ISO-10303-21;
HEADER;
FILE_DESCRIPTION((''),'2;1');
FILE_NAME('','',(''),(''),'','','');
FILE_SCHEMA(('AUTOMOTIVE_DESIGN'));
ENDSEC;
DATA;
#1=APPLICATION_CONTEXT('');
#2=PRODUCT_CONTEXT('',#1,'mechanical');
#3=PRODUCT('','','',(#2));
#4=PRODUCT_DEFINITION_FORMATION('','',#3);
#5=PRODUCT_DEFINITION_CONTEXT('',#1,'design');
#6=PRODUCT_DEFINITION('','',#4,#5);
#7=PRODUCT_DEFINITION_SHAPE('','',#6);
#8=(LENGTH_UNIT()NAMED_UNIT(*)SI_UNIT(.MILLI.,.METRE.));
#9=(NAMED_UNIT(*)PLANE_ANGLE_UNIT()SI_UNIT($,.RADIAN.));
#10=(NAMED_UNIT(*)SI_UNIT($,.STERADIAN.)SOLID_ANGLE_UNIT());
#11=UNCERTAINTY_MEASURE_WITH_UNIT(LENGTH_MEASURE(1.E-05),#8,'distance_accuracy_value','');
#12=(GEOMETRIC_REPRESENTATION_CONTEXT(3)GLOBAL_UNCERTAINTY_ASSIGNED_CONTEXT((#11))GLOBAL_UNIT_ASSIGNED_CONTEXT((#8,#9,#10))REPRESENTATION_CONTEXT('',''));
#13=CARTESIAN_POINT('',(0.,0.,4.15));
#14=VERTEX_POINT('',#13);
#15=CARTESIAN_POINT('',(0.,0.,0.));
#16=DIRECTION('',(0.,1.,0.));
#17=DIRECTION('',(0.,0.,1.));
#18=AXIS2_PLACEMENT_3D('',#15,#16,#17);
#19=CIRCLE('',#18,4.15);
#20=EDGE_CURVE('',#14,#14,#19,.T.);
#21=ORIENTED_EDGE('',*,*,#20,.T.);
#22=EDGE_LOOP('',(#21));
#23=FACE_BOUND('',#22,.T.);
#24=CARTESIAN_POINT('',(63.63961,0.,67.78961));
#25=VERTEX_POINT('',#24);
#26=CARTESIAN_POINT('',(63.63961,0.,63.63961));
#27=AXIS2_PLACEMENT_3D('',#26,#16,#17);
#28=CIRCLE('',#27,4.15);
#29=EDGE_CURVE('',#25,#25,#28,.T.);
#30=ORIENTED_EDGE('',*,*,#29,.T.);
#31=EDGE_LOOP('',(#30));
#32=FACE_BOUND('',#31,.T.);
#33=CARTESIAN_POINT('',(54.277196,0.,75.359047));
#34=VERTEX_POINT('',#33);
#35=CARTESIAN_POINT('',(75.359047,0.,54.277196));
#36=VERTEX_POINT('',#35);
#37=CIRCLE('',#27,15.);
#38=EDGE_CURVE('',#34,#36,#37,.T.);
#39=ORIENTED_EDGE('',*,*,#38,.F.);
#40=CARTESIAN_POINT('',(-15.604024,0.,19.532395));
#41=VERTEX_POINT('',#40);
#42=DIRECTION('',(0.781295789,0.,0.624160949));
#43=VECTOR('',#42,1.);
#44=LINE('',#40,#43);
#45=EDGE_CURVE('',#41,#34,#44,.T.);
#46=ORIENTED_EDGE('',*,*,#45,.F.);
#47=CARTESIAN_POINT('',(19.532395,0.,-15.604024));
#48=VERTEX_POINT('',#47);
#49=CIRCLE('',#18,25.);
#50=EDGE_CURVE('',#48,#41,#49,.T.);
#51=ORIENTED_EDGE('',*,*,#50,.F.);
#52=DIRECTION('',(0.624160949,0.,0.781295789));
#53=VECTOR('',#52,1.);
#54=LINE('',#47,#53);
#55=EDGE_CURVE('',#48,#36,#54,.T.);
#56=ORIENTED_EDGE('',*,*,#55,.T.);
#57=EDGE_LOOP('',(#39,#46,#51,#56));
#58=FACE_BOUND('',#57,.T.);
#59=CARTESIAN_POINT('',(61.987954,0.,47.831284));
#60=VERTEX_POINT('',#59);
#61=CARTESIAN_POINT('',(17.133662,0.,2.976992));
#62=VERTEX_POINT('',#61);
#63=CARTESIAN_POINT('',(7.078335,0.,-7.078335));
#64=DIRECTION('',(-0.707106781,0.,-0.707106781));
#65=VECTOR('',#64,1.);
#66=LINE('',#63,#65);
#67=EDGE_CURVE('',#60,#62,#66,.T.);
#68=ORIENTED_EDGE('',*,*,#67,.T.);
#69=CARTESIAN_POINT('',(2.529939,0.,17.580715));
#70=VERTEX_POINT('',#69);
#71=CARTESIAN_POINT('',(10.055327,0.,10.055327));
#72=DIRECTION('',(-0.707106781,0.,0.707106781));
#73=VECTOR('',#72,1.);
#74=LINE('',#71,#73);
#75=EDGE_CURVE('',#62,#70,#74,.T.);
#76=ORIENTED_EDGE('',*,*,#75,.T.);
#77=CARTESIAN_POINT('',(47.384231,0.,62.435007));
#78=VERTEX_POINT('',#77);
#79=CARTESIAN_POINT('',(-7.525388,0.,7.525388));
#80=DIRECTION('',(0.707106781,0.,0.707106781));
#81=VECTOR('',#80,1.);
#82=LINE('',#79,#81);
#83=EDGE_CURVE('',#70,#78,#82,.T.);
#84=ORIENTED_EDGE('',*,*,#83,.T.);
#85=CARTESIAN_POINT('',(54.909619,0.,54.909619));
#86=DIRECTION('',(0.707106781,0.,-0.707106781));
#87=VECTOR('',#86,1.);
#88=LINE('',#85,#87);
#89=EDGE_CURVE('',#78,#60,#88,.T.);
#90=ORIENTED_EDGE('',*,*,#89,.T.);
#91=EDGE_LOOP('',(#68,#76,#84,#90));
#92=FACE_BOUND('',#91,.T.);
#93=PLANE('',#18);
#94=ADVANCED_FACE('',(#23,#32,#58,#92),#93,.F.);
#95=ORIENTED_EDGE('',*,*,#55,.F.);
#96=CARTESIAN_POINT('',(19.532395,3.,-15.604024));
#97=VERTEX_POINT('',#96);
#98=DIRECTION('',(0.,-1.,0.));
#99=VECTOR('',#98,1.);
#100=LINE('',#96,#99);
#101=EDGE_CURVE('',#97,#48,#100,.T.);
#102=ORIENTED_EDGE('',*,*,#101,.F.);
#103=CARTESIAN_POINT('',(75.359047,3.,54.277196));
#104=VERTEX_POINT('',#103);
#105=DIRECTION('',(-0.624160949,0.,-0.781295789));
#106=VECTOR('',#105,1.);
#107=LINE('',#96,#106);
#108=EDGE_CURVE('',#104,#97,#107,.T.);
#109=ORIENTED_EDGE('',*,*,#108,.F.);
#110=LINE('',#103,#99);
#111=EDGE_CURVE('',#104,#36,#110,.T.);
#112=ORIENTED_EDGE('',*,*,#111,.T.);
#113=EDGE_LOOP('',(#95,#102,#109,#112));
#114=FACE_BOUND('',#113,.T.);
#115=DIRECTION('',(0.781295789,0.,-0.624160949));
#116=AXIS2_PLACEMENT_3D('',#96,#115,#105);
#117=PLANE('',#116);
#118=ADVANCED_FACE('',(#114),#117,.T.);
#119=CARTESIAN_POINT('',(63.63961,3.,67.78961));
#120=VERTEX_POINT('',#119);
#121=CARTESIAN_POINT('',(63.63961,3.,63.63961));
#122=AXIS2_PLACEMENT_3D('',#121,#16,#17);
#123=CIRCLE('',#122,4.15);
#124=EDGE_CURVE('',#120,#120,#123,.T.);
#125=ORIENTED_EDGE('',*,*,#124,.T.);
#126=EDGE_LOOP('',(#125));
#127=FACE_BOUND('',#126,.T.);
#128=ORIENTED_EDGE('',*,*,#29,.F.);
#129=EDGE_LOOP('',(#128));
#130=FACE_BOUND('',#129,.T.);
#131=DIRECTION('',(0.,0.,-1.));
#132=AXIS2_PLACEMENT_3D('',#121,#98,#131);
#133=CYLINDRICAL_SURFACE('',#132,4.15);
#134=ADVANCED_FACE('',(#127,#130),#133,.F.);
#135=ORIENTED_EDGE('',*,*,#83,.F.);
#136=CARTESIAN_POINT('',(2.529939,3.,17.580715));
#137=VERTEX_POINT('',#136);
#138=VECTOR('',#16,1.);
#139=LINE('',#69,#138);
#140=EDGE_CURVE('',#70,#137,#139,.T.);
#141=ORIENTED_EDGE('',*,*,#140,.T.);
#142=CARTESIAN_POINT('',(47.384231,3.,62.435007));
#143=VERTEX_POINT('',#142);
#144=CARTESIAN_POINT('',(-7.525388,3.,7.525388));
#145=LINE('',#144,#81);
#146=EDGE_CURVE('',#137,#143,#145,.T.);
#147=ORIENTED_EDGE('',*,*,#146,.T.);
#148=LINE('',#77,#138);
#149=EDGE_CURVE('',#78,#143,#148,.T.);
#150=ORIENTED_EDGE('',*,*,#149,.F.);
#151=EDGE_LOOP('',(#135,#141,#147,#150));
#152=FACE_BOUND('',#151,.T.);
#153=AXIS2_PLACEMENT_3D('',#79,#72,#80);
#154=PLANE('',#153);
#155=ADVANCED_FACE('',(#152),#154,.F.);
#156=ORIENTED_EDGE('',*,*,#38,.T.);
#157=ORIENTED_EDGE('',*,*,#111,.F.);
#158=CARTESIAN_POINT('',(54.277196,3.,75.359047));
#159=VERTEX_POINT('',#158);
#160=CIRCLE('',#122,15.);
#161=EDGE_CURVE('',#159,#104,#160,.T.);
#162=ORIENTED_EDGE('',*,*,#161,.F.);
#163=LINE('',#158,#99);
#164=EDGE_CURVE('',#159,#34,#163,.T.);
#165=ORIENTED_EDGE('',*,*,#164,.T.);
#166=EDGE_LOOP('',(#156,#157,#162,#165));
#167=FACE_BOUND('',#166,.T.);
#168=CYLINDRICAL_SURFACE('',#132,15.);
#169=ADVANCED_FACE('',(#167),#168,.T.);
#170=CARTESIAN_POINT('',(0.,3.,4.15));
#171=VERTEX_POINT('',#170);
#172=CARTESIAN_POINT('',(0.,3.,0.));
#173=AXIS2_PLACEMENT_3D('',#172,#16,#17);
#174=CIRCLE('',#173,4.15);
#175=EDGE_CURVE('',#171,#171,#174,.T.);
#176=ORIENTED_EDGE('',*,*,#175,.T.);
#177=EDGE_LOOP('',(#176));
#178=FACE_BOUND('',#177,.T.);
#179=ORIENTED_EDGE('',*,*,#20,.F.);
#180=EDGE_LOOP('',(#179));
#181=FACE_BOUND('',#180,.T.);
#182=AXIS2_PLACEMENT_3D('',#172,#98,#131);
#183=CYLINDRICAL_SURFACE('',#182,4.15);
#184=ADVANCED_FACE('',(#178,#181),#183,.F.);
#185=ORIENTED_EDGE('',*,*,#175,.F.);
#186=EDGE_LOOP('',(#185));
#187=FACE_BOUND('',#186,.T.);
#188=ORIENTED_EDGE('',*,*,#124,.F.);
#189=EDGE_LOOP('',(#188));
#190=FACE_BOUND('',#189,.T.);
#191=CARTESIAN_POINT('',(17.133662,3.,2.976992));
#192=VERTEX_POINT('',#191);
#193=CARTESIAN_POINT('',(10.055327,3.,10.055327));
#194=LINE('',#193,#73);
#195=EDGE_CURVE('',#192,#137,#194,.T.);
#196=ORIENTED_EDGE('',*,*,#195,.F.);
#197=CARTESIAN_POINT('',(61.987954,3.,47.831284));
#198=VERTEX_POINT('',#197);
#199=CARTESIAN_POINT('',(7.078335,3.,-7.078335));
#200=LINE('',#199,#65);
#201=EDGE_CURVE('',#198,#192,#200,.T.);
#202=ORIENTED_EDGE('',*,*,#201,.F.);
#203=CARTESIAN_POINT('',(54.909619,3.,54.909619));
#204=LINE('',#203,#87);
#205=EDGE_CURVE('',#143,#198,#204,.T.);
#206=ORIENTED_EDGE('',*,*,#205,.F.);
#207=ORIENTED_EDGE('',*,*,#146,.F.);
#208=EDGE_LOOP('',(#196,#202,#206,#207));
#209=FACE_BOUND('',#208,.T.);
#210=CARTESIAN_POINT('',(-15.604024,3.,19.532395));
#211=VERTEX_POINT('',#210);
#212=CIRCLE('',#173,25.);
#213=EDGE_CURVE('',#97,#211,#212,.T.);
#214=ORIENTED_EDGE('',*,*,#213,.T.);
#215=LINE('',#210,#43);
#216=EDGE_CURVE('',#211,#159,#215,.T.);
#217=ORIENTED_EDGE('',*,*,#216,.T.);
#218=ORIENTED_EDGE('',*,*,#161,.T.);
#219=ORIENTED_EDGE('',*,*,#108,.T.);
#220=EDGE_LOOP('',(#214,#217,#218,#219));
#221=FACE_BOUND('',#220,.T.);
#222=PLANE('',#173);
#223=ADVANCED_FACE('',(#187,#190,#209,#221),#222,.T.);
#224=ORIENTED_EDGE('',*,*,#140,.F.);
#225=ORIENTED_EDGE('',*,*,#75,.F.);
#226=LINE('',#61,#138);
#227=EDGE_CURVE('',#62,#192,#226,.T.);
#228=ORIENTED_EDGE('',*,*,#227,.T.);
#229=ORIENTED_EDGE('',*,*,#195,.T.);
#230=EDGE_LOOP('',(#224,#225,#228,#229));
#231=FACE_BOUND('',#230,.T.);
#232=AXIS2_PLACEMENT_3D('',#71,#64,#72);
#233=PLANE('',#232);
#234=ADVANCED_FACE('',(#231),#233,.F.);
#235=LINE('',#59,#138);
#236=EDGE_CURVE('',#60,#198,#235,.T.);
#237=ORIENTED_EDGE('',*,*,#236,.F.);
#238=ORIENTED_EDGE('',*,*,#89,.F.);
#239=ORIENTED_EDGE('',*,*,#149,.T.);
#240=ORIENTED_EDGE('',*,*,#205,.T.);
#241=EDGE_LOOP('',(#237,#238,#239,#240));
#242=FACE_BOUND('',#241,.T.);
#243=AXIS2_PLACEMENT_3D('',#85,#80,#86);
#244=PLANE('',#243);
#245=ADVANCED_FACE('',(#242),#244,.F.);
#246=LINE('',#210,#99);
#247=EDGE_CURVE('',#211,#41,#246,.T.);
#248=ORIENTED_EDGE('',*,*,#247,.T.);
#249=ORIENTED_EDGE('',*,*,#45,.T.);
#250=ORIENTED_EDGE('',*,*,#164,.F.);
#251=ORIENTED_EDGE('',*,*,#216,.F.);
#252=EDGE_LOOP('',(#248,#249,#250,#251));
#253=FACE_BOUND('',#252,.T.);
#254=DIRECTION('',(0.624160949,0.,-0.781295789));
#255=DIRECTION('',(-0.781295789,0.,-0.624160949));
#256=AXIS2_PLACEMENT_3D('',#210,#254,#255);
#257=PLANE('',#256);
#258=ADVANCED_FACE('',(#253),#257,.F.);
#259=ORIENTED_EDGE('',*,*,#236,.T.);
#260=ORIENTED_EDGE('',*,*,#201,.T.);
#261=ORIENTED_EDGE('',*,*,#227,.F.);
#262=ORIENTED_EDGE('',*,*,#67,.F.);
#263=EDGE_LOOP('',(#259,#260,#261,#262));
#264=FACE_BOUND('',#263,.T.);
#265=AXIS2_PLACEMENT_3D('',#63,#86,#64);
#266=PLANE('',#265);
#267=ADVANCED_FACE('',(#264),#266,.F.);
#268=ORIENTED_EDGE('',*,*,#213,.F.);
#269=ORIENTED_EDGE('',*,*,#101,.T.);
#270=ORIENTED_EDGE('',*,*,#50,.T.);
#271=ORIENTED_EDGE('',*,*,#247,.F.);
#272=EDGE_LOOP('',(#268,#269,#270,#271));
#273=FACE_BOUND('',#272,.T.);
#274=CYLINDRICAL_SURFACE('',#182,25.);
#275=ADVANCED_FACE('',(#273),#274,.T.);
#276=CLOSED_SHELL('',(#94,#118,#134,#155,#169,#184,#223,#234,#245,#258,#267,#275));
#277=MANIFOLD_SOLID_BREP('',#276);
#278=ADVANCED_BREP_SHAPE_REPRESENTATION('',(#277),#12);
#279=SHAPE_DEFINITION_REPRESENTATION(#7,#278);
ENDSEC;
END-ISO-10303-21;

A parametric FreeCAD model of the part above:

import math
import FreeCAD as App
import Part
import Sketcher

V = App.Vector
Q = App.Units.Quantity


def add_polygon(sketch, points):
    """Adds a closed chain of lines whose ends are joined by coincident constraints."""
    first, n = sketch.GeometryCount, len(points)
    for a, b in zip(points, points[1:] + points[:1]):
        sketch.addGeometry(Part.LineSegment(App.Vector(*a, 0), App.Vector(*b, 0)), False)
    for i in range(n):
        sketch.addConstraint(Sketcher.Constraint("Coincident", first + i, 2, first + (i + 1) % n, 1))

doc = App.newDocument("Part")
body = doc.addObject("PartDesign::Body", "Body")

sketch1 = body.newObject("Sketcher::SketchObject", "Sketch")
sketch1.AttachmentSupport = (doc.getObject("XZ_Plane"), [""])
sketch1.MapMode = "FlatFace"
sketch1.addGeometry([
    Part.ArcOfCircle(Part.Circle(V(0, 0, 0), V(0, 0, 1), 25), math.radians(128.62063), math.radians(321.37937)),
    Part.LineSegment(V(-15.604024, 19.532395, 0), V(54.277196, 75.359047, 0)),
    Part.ArcOfCircle(Part.Circle(V(63.63961, 63.63961, 0), V(0, 0, 1), 15), math.radians(-38.62063), math.radians(128.62063)),
    Part.LineSegment(V(75.359047, 54.277196, 0), V(19.532395, -15.604024, 0)),
    Part.Circle(V(63.63961, 63.63961, 0), V(0, 0, 1), 4.15),
    Part.Circle(V(0, 0, 0), V(0, 0, 1), 4.15),
], False)
sketch1.addConstraint([
    Sketcher.Constraint("Tangent", 0, 1, 1, 1),
    Sketcher.Constraint("Tangent", 1, 2, 2, 2),
    Sketcher.Constraint("Tangent", 2, 1, 3, 1),
    Sketcher.Constraint("Tangent", 3, 2, 0, 2),
    Sketcher.Constraint("Coincident", 0, 3, -1, 1),
    Sketcher.Constraint("Coincident", 5, 3, -1, 1),
    Sketcher.Constraint("Coincident", 4, 3, 2, 3),
    Sketcher.Constraint("Equal", 4, 5),
    Sketcher.Constraint("Radius", 0, Q("25 mm")),
    Sketcher.Constraint("Radius", 2, Q("15 mm")),
    Sketcher.Constraint("Diameter", 4, Q("8.3 mm")),
    Sketcher.Constraint("Distance", 1, Q("89.442719 mm")),
    Sketcher.Constraint("DistanceX", -1, 1, 2, 3, Q("63.63961 mm")),
])
pad1 = body.newObject("PartDesign::Pad", "Pad")
pad1.Profile = sketch1
pad1.Length = 3
pad1.Reversed = True

sketch2 = body.newObject("Sketcher::SketchObject", "Sketch001")
sketch2.AttachmentSupport = (doc.getObject("XZ_Plane"), [""])
sketch2.MapMode = "FlatFace"
sketch2.AttachmentOffset = App.Placement(V(0, 0, -3), App.Rotation())
sketch2.addGeometry([
    Part.ArcOfCircle(Part.Circle(V(63.63961, 63.63961, 0), V(0, 0, 1), 15), math.radians(-38.62063), math.radians(128.62063)),
    Part.LineSegment(V(75.359047, 54.277196, 0), V(19.532395, -15.604024, 0)),
    Part.ArcOfCircle(Part.Circle(V(0, 0, 0), V(0, 0, 1), 25), math.radians(128.62063), math.radians(321.37937)),
    Part.LineSegment(V(-15.604024, 19.532395, 0), V(54.277196, 75.359047, 0)),
    Part.ArcOfCircle(Part.Circle(V(0, 0, 0), V(0, 0, 1), 23), math.radians(128.62063), math.radians(321.37937)),
    Part.LineSegment(V(17.969803, -14.355702, 0), V(73.796456, 55.525518, 0)),
    Part.ArcOfCircle(Part.Circle(V(63.63961, 63.63961, 0), V(0, 0, 1), 13), math.radians(-38.62063), math.radians(128.62063)),
    Part.LineSegment(V(55.525518, 73.796456, 0), V(-14.355702, 17.969803, 0)),
], False)
sketch2.addConstraint([
    Sketcher.Constraint("Tangent", 0, 1, 1, 1),
    Sketcher.Constraint("Tangent", 1, 2, 2, 2),
    Sketcher.Constraint("Tangent", 2, 1, 3, 1),
    Sketcher.Constraint("Tangent", 3, 2, 0, 2),
    Sketcher.Constraint("Tangent", 4, 2, 5, 1),
    Sketcher.Constraint("Tangent", 5, 2, 6, 1),
    Sketcher.Constraint("Tangent", 6, 2, 7, 1),
    Sketcher.Constraint("Tangent", 7, 2, 4, 1),
    Sketcher.Constraint("Coincident", 2, 3, -1, 1),
    Sketcher.Constraint("Coincident", 4, 3, -1, 1),
    Sketcher.Constraint("Coincident", 6, 3, 0, 3),
    Sketcher.Constraint("Parallel", 1, 5),
    Sketcher.Constraint("Radius", 0, Q("15 mm")),
    Sketcher.Constraint("Radius", 2, Q("25 mm")),
    Sketcher.Constraint("Radius", 4, Q("23 mm")),
    Sketcher.Constraint("DistanceY", 4, 2, -1, 1, Q("14.355702 mm")),
    Sketcher.Constraint("DistanceX", 7, 2, -1, 1, Q("14.355702 mm")),
])
pad2 = body.newObject("PartDesign::Pad", "Pad001")
pad2.Profile = sketch2
pad2.Length = 12
pad2.Reversed = True

sketch3 = body.newObject("Sketcher::SketchObject", "Sketch002")
sketch3.AttachmentSupport = (doc.getObject("XZ_Plane"), [""])
sketch3.MapMode = "FlatFace"
sketch3.AttachmentOffset = App.Placement(V(0, 0, -3), App.Rotation())
add_polygon(sketch3, [(17.133662, 2.976992), (10.055327, 10.055327), (2.529939, 17.580715), (47.384231, 62.435007), (54.909619, 54.909619), (61.987954, 47.831284)])
sketch3.addConstraint([
    Sketcher.Constraint("Parallel", 0, 1),
    Sketcher.Constraint("Perpendicular", 1, 2),
    Sketcher.Constraint("Perpendicular", 2, 3),
    Sketcher.Constraint("Parallel", 3, 4),
    Sketcher.Constraint("Perpendicular", 4, 5),
    Sketcher.Constraint("Equal", 1, 3),
    Sketcher.Constraint("Angle", 0, Q("135 deg")),
    Sketcher.Constraint("Distance", 2, Q("63.433548 mm")),
    Sketcher.Constraint("DistanceX", -1, 1, 1, 2, Q("2.529939 mm")),
    Sketcher.Constraint("DistanceX", -1, 1, 3, 2, Q("54.909619 mm")),
    Sketcher.Constraint("DistanceY", -1, 1, 3, 2, Q("54.909619 mm")),
    Sketcher.Constraint("DistanceY", 1, 2, 4, 2, Q("30.250569 mm")),
])
pocket1 = body.newObject("PartDesign::Pocket", "Pocket")
pocket1.Profile = sketch3
pocket1.Type = "ThroughAll"
pocket1.Reversed = True

sketch4 = body.newObject("Sketcher::SketchObject", "Sketch003")
sketch4.AttachmentSupport = (doc.getObject("XZ_Plane"), [""])
sketch4.MapMode = "FlatFace"
sketch4.AttachmentOffset = App.Placement(V(0, 0, -3), App.Rotation())
sketch4.addGeometry([
    Part.LineSegment(V(75.359047, 54.277196, 0), V(19.532395, -15.604024, 0)),
    Part.ArcOfCircle(Part.Circle(V(0, 0, 0), V(0, 0, 1), 25), math.radians(128.62063), math.radians(321.37937)),
    Part.LineSegment(V(-15.604024, 19.532395, 0), V(54.277196, 75.359047, 0)),
    Part.ArcOfCircle(Part.Circle(V(63.63961, 63.63961, 0), V(0, 0, 1), 15), math.radians(0), math.radians(128.62063)),
    Part.ArcOfCircle(Part.Circle(V(63.63961, 63.63961, 0), V(0, 0, 1), 15), math.radians(-38.62063), math.radians(0)),
    Part.LineSegment(V(-6.700598, 24.085307, 0), V(-14.355702, 17.969803, 0)),
    Part.ArcOfCircle(Part.Circle(V(0, 0, 0), V(0, 0, 1), 23), math.radians(128.62063), math.radians(321.37937)),
    Part.LineSegment(V(17.969803, -14.355702, 0), V(24.085307, -6.700598, 0)),
    Part.LineSegment(V(24.085307, -6.700598, 0), V(69.125663, 49.678836, 0)),
    Part.LineSegment(V(69.125663, 49.678836, 0), V(73.796456, 55.525518, 0)),
    Part.ArcOfCircle(Part.Circle(V(63.63961, 63.63961, 0), V(0, 0, 1), 13), math.radians(-38.62063), math.radians(0)),
    Part.ArcOfCircle(Part.Circle(V(63.63961, 63.63961, 0), V(0, 0, 1), 13), math.radians(0), math.radians(128.62063)),
    Part.LineSegment(V(55.525518, 73.796456, 0), V(49.678836, 69.125663, 0)),
    Part.LineSegment(V(49.678836, 69.125663, 0), V(-6.700598, 24.085307, 0)),
], False)
sketch4.addConstraint([
    Sketcher.Constraint("Tangent", 0, 2, 1, 2),
    Sketcher.Constraint("Tangent", 1, 1, 2, 1),
    Sketcher.Constraint("Tangent", 2, 2, 3, 2),
    Sketcher.Constraint("Tangent", 3, 1, 4, 2),
    Sketcher.Constraint("Tangent", 4, 1, 0, 1),
    Sketcher.Constraint("Tangent", 5, 2, 6, 1),
    Sketcher.Constraint("Tangent", 6, 2, 7, 1),
    Sketcher.Constraint("Coincident", 7, 2, 8, 1),
    Sketcher.Constraint("Coincident", 8, 2, 9, 1),
    Sketcher.Constraint("Tangent", 9, 2, 10, 1),
    Sketcher.Constraint("Tangent", 10, 2, 11, 1),
    Sketcher.Constraint("Tangent", 11, 2, 12, 1),
    Sketcher.Constraint("Coincident", 12, 2, 13, 1),
    Sketcher.Constraint("Coincident", 13, 2, 5, 1),
    Sketcher.Constraint("Coincident", 1, 3, -1, 1),
    Sketcher.Constraint("Coincident", 6, 3, -1, 1),
    Sketcher.Constraint("Coincident", 10, 3, 3, 3),
    Sketcher.Constraint("Equal", 3, 4),
    Sketcher.Constraint("Equal", 10, 11),
    Sketcher.Constraint("Parallel", 2, 5),
    Sketcher.Constraint("Parallel", 0, 7),
    Sketcher.Constraint("Parallel", 7, 8),
    Sketcher.Constraint("Parallel", 8, 9),
    Sketcher.Constraint("Parallel", 5, 12),
    Sketcher.Constraint("Horizontal", 11, 3, 3, 1),
    Sketcher.Constraint("Horizontal", 3, 1, 10, 2),
    Sketcher.Constraint("Equal", 5, 7),
    Sketcher.Constraint("Equal", 9, 12),
    Sketcher.Constraint("Radius", 1, Q("25 mm")),
    Sketcher.Constraint("Radius", 3, Q("15 mm")),
    Sketcher.Constraint("Radius", 6, Q("23 mm")),
    Sketcher.Constraint("DistanceX", 5, 2, -1, 1, Q("14.355702 mm")),
    Sketcher.Constraint("DistanceY", 7, 2, 5, 2, Q("24.670401 mm")),
    Sketcher.Constraint("Distance", 0, Q("89.442719 mm")),
    Sketcher.Constraint("DistanceY", 8, 2, 4, 1, Q("4.59836 mm")),
])
pocket2 = body.newObject("PartDesign::Pocket", "Pocket001")
pocket2.Profile = sketch4
pocket2.Type = "ThroughAll"

doc.recompute()
